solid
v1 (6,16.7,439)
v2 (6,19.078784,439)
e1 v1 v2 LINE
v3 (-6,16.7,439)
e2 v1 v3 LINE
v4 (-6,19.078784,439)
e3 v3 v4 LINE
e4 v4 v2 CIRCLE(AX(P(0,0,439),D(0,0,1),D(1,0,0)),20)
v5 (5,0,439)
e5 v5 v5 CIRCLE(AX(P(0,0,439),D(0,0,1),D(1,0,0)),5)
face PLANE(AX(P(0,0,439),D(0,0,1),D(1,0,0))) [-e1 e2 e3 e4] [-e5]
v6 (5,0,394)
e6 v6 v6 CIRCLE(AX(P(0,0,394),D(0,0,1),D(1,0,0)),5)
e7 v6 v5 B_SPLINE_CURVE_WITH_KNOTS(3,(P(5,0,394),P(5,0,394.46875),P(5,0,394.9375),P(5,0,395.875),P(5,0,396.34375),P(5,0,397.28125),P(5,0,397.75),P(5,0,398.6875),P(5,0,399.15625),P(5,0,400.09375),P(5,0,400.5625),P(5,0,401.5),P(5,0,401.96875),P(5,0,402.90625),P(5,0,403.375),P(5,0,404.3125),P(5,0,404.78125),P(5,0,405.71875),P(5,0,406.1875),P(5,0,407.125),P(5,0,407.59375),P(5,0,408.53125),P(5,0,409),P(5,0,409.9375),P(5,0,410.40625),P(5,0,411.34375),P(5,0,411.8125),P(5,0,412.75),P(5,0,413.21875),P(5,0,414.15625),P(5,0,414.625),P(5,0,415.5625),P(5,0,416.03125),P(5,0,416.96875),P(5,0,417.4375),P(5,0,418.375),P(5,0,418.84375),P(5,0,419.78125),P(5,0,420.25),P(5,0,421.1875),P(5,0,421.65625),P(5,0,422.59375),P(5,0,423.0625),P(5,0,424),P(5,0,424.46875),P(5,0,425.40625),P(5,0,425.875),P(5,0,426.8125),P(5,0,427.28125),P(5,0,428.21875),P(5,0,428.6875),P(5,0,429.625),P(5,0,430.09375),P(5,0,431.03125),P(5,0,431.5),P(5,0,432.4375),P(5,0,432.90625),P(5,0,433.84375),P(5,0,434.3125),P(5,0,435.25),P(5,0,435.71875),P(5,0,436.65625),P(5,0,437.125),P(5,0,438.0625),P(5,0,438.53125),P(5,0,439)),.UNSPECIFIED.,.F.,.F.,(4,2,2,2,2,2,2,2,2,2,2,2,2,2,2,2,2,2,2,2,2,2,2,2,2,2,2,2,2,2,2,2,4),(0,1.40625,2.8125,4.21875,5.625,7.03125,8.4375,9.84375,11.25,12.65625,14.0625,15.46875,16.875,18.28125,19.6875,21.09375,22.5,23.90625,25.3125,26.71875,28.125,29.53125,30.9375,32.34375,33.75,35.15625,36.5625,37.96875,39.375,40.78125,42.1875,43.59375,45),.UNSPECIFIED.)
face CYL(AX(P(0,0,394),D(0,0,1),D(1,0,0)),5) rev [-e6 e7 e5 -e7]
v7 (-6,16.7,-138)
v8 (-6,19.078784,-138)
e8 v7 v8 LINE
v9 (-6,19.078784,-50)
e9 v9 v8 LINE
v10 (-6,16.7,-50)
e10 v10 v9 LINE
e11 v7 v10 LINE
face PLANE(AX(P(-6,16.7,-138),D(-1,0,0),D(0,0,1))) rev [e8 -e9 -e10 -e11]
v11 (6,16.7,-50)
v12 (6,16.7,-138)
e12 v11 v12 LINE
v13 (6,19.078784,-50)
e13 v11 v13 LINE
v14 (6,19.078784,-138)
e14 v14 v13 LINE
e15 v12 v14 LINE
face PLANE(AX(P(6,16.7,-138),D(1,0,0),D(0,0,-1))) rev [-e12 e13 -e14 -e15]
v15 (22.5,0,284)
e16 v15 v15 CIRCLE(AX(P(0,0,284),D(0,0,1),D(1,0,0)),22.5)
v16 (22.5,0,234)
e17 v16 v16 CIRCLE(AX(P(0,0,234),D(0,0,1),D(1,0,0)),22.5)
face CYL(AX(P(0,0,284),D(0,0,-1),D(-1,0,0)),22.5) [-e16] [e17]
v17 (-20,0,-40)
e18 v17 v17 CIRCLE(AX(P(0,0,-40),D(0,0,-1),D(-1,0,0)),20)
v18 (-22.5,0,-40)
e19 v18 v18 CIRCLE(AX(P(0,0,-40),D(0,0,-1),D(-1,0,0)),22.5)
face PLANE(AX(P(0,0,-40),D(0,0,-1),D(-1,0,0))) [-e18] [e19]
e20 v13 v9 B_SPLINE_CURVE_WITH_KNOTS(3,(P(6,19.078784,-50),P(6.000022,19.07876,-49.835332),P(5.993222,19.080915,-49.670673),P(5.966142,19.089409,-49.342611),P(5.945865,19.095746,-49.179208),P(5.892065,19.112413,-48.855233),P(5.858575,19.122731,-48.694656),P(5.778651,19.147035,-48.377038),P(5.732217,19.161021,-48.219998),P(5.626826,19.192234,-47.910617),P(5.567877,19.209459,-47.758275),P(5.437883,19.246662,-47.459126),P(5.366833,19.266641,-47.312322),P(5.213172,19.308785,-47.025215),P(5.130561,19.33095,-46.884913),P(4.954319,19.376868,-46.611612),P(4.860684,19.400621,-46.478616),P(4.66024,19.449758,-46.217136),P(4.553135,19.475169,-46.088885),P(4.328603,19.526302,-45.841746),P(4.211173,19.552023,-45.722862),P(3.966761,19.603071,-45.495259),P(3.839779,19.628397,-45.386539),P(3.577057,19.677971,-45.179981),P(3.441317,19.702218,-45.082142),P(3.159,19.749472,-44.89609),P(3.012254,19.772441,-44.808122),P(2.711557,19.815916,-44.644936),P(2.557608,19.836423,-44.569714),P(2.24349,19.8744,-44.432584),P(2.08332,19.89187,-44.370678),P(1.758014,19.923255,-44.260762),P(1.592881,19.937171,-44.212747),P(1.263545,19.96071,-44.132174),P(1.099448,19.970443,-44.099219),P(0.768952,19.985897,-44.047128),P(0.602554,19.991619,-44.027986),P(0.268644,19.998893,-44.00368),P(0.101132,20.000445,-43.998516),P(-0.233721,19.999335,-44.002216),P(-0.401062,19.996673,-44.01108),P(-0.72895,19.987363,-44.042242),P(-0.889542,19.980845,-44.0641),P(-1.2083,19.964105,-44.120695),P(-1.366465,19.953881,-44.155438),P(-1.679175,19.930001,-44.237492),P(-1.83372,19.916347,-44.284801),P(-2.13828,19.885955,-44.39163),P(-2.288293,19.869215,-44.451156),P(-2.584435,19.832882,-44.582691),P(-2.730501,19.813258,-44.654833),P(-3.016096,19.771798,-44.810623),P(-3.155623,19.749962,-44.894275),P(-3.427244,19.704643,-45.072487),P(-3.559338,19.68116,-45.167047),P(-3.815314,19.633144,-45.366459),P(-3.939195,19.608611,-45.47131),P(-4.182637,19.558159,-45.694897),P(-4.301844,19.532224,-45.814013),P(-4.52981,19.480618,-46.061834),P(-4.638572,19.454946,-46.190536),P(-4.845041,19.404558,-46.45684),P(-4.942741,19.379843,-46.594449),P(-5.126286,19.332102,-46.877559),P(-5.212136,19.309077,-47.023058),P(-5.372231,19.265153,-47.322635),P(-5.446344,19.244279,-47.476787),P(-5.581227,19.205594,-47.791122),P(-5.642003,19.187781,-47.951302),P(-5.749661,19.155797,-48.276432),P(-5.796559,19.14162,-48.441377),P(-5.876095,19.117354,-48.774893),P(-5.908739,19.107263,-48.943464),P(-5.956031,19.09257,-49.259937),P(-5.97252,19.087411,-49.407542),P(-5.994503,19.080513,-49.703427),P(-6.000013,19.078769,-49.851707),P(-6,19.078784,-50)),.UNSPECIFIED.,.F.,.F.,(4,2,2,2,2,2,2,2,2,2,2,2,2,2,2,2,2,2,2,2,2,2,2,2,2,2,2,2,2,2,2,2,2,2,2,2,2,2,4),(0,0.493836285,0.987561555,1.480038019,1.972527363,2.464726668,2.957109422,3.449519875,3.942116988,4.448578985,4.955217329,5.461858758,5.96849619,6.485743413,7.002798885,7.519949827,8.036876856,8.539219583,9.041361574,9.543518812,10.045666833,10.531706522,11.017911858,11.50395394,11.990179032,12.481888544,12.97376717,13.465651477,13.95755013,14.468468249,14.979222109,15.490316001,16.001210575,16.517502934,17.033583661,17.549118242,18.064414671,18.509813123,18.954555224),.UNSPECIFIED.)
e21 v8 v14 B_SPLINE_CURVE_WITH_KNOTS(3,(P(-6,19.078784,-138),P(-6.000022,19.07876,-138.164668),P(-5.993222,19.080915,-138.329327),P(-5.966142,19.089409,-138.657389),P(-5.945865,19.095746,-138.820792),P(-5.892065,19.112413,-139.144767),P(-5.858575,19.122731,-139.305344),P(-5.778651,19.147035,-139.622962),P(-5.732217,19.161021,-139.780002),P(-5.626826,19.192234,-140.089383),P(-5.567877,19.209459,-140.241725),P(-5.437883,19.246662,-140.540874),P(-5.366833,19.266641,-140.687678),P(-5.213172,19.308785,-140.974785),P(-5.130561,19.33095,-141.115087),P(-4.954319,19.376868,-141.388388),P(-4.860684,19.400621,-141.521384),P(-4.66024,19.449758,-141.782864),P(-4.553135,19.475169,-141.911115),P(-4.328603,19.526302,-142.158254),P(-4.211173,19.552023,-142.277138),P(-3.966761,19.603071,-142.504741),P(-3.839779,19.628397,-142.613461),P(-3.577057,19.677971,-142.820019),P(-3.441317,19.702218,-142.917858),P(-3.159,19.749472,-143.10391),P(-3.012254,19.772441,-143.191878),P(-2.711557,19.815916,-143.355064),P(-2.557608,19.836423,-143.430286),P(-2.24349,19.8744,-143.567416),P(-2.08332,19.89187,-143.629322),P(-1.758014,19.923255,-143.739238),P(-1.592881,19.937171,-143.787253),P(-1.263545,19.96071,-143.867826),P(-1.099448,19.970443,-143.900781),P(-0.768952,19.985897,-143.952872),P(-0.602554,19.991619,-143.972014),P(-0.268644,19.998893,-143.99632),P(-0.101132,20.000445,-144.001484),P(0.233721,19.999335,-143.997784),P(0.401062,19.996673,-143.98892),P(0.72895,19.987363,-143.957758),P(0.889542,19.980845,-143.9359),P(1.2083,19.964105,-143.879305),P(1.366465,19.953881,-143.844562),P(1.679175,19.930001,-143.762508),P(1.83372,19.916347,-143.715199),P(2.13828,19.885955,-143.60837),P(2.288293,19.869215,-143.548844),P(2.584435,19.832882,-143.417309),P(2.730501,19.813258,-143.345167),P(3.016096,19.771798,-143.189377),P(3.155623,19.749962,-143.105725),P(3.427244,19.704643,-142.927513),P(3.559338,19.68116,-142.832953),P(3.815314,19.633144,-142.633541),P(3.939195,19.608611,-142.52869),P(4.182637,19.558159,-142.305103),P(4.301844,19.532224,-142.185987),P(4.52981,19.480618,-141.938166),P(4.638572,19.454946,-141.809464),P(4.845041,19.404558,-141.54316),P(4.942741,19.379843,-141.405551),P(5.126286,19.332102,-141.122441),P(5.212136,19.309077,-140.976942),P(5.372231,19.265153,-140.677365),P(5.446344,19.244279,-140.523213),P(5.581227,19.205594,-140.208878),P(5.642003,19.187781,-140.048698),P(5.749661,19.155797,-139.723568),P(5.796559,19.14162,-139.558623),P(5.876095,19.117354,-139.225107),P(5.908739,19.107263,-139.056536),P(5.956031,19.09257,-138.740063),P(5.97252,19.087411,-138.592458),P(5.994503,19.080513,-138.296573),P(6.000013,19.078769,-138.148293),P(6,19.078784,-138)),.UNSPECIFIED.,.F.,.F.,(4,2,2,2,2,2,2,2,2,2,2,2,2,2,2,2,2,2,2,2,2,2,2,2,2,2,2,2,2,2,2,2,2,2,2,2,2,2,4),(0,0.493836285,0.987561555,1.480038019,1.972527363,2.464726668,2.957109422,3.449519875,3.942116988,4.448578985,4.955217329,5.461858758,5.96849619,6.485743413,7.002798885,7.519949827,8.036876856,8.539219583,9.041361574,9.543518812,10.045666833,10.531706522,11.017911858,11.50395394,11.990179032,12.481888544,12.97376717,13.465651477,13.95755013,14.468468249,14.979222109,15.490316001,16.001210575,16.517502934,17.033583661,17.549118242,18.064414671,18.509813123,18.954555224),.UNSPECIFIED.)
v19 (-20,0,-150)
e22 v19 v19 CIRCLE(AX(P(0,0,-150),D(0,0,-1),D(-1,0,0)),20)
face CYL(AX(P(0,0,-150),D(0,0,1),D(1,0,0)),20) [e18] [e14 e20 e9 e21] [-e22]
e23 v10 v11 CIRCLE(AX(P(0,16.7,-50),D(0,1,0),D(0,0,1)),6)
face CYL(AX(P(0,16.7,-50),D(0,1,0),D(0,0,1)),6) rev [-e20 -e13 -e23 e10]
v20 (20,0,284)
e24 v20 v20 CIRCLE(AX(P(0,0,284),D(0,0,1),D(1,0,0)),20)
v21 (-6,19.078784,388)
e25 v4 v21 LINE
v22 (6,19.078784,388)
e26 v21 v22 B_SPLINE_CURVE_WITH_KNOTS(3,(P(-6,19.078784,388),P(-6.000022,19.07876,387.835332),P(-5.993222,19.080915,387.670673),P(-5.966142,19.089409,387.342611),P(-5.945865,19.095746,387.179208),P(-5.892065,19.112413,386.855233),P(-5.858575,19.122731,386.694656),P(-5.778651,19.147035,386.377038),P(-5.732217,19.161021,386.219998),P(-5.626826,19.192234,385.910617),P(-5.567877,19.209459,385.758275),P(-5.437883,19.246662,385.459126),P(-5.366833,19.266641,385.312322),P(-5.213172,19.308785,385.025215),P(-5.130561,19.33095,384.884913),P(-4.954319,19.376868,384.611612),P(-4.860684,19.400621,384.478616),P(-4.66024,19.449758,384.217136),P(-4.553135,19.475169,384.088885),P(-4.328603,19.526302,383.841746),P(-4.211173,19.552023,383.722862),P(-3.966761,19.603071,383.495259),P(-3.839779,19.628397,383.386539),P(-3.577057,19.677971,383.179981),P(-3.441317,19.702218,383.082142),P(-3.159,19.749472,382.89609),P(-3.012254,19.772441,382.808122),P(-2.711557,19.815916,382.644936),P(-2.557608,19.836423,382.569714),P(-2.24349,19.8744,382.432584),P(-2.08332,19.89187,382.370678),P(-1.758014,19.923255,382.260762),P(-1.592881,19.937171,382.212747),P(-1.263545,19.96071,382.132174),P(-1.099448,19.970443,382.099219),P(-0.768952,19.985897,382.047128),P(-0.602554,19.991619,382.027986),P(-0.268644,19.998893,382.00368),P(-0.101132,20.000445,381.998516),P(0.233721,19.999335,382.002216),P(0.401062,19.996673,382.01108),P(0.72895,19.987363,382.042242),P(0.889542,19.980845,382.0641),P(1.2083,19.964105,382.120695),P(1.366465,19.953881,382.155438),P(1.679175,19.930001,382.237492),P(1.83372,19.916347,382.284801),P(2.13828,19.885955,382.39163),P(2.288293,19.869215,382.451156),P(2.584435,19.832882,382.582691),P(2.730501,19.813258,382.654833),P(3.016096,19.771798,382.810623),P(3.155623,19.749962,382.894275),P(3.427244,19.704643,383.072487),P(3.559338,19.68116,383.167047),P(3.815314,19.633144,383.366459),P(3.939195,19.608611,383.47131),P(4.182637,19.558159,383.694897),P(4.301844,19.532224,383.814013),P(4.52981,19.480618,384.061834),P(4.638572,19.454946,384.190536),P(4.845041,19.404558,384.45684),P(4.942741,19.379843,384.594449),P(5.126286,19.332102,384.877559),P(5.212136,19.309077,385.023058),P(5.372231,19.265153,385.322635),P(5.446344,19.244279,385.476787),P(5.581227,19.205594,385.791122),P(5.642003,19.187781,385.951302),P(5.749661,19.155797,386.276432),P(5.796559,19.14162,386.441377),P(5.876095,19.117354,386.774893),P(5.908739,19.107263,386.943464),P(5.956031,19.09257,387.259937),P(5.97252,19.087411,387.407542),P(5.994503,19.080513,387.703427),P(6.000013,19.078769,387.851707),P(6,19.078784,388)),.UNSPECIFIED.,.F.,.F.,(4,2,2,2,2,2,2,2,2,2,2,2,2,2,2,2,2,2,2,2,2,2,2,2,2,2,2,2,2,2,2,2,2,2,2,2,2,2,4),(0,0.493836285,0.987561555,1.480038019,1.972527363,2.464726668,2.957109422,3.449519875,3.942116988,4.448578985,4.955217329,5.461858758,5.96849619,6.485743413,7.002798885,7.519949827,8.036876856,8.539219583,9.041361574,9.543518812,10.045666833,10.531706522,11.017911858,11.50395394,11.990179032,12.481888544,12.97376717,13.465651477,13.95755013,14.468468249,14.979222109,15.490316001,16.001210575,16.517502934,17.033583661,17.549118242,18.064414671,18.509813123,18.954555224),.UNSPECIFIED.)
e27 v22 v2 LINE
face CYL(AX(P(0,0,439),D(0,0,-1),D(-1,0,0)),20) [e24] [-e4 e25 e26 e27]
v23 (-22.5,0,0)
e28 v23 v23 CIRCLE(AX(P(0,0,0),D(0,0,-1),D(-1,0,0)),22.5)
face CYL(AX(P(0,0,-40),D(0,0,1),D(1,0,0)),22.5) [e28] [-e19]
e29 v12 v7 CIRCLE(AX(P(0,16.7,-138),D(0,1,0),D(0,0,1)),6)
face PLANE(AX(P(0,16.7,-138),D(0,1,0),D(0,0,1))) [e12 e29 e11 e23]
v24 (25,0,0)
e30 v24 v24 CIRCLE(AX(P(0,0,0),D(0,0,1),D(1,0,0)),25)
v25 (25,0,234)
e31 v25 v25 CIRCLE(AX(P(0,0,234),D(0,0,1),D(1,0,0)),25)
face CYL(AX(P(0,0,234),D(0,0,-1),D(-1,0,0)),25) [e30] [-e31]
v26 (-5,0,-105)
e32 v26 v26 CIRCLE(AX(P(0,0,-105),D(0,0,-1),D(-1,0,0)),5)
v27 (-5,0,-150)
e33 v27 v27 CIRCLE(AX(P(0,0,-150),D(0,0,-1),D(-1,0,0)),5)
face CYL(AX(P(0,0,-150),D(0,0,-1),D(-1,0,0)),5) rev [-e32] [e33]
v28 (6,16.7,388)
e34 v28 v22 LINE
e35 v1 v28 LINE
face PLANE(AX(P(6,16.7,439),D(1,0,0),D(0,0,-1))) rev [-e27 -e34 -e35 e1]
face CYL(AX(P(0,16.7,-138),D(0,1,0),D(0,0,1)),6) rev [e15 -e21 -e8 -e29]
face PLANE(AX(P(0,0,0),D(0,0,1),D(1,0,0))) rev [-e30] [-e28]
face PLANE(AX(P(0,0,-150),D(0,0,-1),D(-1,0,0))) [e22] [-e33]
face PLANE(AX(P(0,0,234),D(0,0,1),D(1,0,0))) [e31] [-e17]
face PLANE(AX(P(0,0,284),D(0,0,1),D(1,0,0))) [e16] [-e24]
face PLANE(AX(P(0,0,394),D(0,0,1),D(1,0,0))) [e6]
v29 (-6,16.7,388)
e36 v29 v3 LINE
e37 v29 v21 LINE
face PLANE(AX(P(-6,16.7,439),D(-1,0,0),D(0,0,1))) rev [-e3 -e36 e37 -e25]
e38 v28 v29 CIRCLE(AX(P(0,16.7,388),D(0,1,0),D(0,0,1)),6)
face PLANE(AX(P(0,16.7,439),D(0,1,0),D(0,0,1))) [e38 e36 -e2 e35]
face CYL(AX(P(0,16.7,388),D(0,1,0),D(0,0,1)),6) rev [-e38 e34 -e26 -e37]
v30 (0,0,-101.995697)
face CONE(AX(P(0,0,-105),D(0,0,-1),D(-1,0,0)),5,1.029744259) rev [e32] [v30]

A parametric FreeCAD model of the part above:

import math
import FreeCAD as App
import Part
import Sketcher
from FreeCAD import Vector

doc = App.newDocument("Part")
params = doc.addObject("Spreadsheet::Sheet", "Params")
for row, (alias, value) in enumerate([
    ("sketch1_diameter", "50 mm"),
    ("pad1_length", "234 mm"),
    ("sketch2_diameter", "45 mm"),
    ("pad2_length", "40 mm"),
    ("sketch3_diameter", "40 mm"),
    ("pad3_length", "110 mm"),
    ("sketch4_diameter", "45 mm"),
    ("pad4_length", "50 mm"),
    ("sketch5_diameter", "40 mm"),
    ("pad5_length", "155 mm"),
    ("sketch6_radius", "6 mm"),
    ("sketch6_height", "51 mm"),
    ("pocket1_length", "3.3 mm"),
    ("sketch7_diameter", "10 mm"),
    ("pocket2_length", "45 mm"),
    ("sketch8_radius", "6 mm"),
    ("sketch8_height", "88 mm"),
    ("pocket3_length", "3.3 mm"),
    ("sketch9_diameter", "10 mm"),
    ("hole_diameter", "10 mm"),
    ("hole_depth", "45 mm"),
], start=1):
    params.set(f"A{row}", alias)
    params.set(f"B{row}", "=" + value)
    params.setAlias(f"B{row}", alias)

body = doc.addObject("PartDesign::Body", "Body")

sketch1 = body.newObject("Sketcher::SketchObject", "Sketch")
sketch1.AttachmentSupport = (doc.getObject("XY_Plane"), [""])
sketch1.MapMode = "FlatFace"
sketch1.addGeometry(Part.Circle(Vector(0, 0, 0), Vector(0, 0, 1), 25), False)
sketch1.addConstraint(Sketcher.Constraint("Coincident", 0, 3, -1, 1))
sketch1.addConstraint(Sketcher.Constraint("Diameter", 0, 50.0))
sketch1.setExpression("Constraints[1]", "Params.sketch1_diameter")
pad1 = body.newObject("PartDesign::Pad", "Pad")
pad1.Profile = sketch1
pad1.setExpression("Length", "Params.pad1_length")

sketch2 = body.newObject("Sketcher::SketchObject", "Sketch001")
sketch2.AttachmentSupport = (doc.getObject("XY_Plane"), [""])
sketch2.MapMode = "FlatFace"
sketch2.addGeometry(Part.Circle(Vector(0, 0, 0), Vector(0, 0, 1), 22.5), False)
sketch2.addConstraint(Sketcher.Constraint("Coincident", 0, 3, -1, 1))
sketch2.addConstraint(Sketcher.Constraint("Diameter", 0, 45.0))
sketch2.setExpression("Constraints[1]", "Params.sketch2_diameter")
pad2 = body.newObject("PartDesign::Pad", "Pad001")
pad2.Profile = sketch2
pad2.setExpression("Length", "Params.pad2_length")
pad2.Reversed = True

sketch3 = body.newObject("Sketcher::SketchObject", "Sketch002")
sketch3.AttachmentSupport = (doc.getObject("XY_Plane"), [""])
sketch3.MapMode = "FlatFace"
sketch3.AttachmentOffset = App.Placement(Vector(0, 0, -40), App.Rotation())
sketch3.addGeometry(Part.Circle(Vector(0, 0, 0), Vector(0, 0, 1), 20), False)
sketch3.addConstraint(Sketcher.Constraint("Coincident", 0, 3, -1, 1))
sketch3.addConstraint(Sketcher.Constraint("Diameter", 0, 40.0))
sketch3.setExpression("Constraints[1]", "Params.sketch3_diameter")
pad3 = body.newObject("PartDesign::Pad", "Pad002")
pad3.Profile = sketch3
pad3.setExpression("Length", "Params.pad3_length")
pad3.Reversed = True

sketch4 = body.newObject("Sketcher::SketchObject", "Sketch003")
sketch4.AttachmentSupport = (doc.getObject("XY_Plane"), [""])
sketch4.MapMode = "FlatFace"
sketch4.AttachmentOffset = App.Placement(Vector(0, 0, 284), App.Rotation())
sketch4.addGeometry(Part.Circle(Vector(0, 0, 0), Vector(0, 0, 1), 22.5), False)
sketch4.addConstraint(Sketcher.Constraint("Coincident", 0, 3, -1, 1))
sketch4.addConstraint(Sketcher.Constraint("Diameter", 0, 45.0))
sketch4.setExpression("Constraints[1]", "Params.sketch4_diameter")
pad4 = body.newObject("PartDesign::Pad", "Pad003")
pad4.Profile = sketch4
pad4.setExpression("Length", "Params.pad4_length")
pad4.Reversed = True

sketch5 = body.newObject("Sketcher::SketchObject", "Sketch004")
sketch5.AttachmentSupport = (doc.getObject("XY_Plane"), [""])
sketch5.MapMode = "FlatFace"
sketch5.AttachmentOffset = App.Placement(Vector(0, 0, 439), App.Rotation())
sketch5.addGeometry(Part.Circle(Vector(0, 0, 0), Vector(0, 0, 1), 20), False)
sketch5.addConstraint(Sketcher.Constraint("Coincident", 0, 3, -1, 1))
sketch5.addConstraint(Sketcher.Constraint("Diameter", 0, 40.0))
sketch5.setExpression("Constraints[1]", "Params.sketch5_diameter")
pad5 = body.newObject("PartDesign::Pad", "Pad004")
pad5.Profile = sketch5
pad5.setExpression("Length", "Params.pad5_length")
pad5.Reversed = True

sketch6 = body.newObject("Sketcher::SketchObject", "Sketch005")
sketch6.AttachmentSupport = (doc.getObject("XZ_Plane"), [""])
sketch6.MapMode = "FlatFace"
sketch6.AttachmentOffset = App.Placement(Vector(0, 0, -20), App.Rotation())
sketch6.addGeometry(Part.LineSegment(Vector(-6, 388, 0), Vector(-6, 439, 0)), False)
sketch6.addGeometry(Part.ArcOfCircle(Part.Circle(Vector(0, 439, 0), Vector(0, 0, 1), 6), math.radians(0), math.radians(180)), False)
sketch6.addGeometry(Part.LineSegment(Vector(6, 439, 0), Vector(6, 388, 0)), False)
sketch6.addGeometry(Part.ArcOfCircle(Part.Circle(Vector(0, 388, 0), Vector(0, 0, 1), 6), math.radians(180), math.radians(360)), False)
sketch6.addConstraint(Sketcher.Constraint("Tangent", 0, 2, 1, 2))
sketch6.addConstraint(Sketcher.Constraint("Tangent", 1, 1, 2, 1))
sketch6.addConstraint(Sketcher.Constraint("Tangent", 2, 2, 3, 2))
sketch6.addConstraint(Sketcher.Constraint("Tangent", 3, 1, 0, 1))
sketch6.addConstraint(Sketcher.Constraint("Vertical", 0))
sketch6.addConstraint(Sketcher.Constraint("Vertical", 2))
sketch6.addConstraint(Sketcher.Constraint("PointOnObject", 1, 3, -2))
sketch6.addConstraint(Sketcher.Constraint("Radius", 1, 6.0))
sketch6.addConstraint(Sketcher.Constraint("DistanceY", 0, 1, 0, 2, 51.0))
sketch6.addConstraint(Sketcher.Constraint("DistanceY", -1, 1, 1, 3, 439.0))
sketch6.setExpression("Constraints[7]", "Params.sketch6_radius")
sketch6.setExpression("Constraints[8]", "Params.sketch6_height")
pocket1 = body.newObject("PartDesign::Pocket", "Pocket")
pocket1.Profile = sketch6
pocket1.setExpression("Length", "Params.pocket1_length")
pocket1.Reversed = True

sketch7 = body.newObject("Sketcher::SketchObject", "Sketch006")
sketch7.AttachmentSupport = (doc.getObject("XY_Plane"), [""])
sketch7.MapMode = "FlatFace"
sketch7.AttachmentOffset = App.Placement(Vector(0, 0, 439), App.Rotation())
sketch7.addGeometry(Part.Circle(Vector(0, 0, 0), Vector(0, 0, 1), 5), False)
sketch7.addConstraint(Sketcher.Constraint("Coincident", 0, 3, -1, 1))
sketch7.addConstraint(Sketcher.Constraint("Diameter", 0, 10.0))
sketch7.setExpression("Constraints[1]", "Params.sketch7_diameter")
pocket2 = body.newObject("PartDesign::Pocket", "Pocket001")
pocket2.Profile = sketch7
pocket2.setExpression("Length", "Params.pocket2_length")

sketch8 = body.newObject("Sketcher::SketchObject", "Sketch007")
sketch8.AttachmentSupport = (doc.getObject("XZ_Plane"), [""])
sketch8.MapMode = "FlatFace"
sketch8.AttachmentOffset = App.Placement(Vector(0, 0, -20), App.Rotation())
sketch8.addGeometry(Part.LineSegment(Vector(6, -50, 0), Vector(6, -138, 0)), False)
sketch8.addGeometry(Part.ArcOfCircle(Part.Circle(Vector(0, -138, 0), Vector(0, 0, 1), 6), math.radians(180), math.radians(360)), False)
sketch8.addGeometry(Part.LineSegment(Vector(-6, -138, 0), Vector(-6, -50, 0)), False)
sketch8.addGeometry(Part.ArcOfCircle(Part.Circle(Vector(0, -50, 0), Vector(0, 0, 1), 6), math.radians(0), math.radians(180)), False)
sketch8.addConstraint(Sketcher.Constraint("Tangent", 0, 2, 1, 2))
sketch8.addConstraint(Sketcher.Constraint("Tangent", 1, 1, 2, 1))
sketch8.addConstraint(Sketcher.Constraint("Tangent", 2, 2, 3, 2))
sketch8.addConstraint(Sketcher.Constraint("Tangent", 3, 1, 0, 1))
sketch8.addConstraint(Sketcher.Constraint("Vertical", 0))
sketch8.addConstraint(Sketcher.Constraint("Vertical", 2))
sketch8.addConstraint(Sketcher.Constraint("PointOnObject", 1, 3, -2))
sketch8.addConstraint(Sketcher.Constraint("Radius", 1, 6.0))
sketch8.addConstraint(Sketcher.Constraint("DistanceY", 0, 2, 0, 1, 88.0))
sketch8.addConstraint(Sketcher.Constraint("DistanceY", 1, 3, -1, 1, 138.0))
sketch8.setExpression("Constraints[7]", "Params.sketch8_radius")
sketch8.setExpression("Constraints[8]", "Params.sketch8_height")
pocket3 = body.newObject("PartDesign::Pocket", "Pocket002")
pocket3.Profile = sketch8
pocket3.setExpression("Length", "Params.pocket3_length")
pocket3.Reversed = True

sketch9 = body.newObject("Sketcher::SketchObject", "Sketch008")
sketch9.AttachmentSupport = (doc.getObject("XY_Plane"), [""])
sketch9.MapMode = "FlatFace"
sketch9.AttachmentOffset = App.Placement(Vector(0, 0, -150), App.Rotation())
sketch9.addGeometry(Part.Circle(Vector(0, 0, 0), Vector(0, 0, 1), 5), False)
sketch9.addConstraint(Sketcher.Constraint("Coincident", 0, 3, -1, 1))
sketch9.addConstraint(Sketcher.Constraint("Diameter", 0, 10.0))
sketch9.setExpression("Constraints[1]", "Params.sketch9_diameter")
doc.recompute()
hole = body.newObject("PartDesign::Hole", "Hole")
hole.Profile = sketch9
hole.ThreadType = "None"
hole.setExpression("Diameter", "Params.hole_diameter")
hole.DepthType = "Dimension"
hole.setExpression("Depth", "Params.hole_depth")
hole.DrillPoint = "Angled"
hole.DrillPointAngle = 118
hole.Reversed = True

doc.recompute()
